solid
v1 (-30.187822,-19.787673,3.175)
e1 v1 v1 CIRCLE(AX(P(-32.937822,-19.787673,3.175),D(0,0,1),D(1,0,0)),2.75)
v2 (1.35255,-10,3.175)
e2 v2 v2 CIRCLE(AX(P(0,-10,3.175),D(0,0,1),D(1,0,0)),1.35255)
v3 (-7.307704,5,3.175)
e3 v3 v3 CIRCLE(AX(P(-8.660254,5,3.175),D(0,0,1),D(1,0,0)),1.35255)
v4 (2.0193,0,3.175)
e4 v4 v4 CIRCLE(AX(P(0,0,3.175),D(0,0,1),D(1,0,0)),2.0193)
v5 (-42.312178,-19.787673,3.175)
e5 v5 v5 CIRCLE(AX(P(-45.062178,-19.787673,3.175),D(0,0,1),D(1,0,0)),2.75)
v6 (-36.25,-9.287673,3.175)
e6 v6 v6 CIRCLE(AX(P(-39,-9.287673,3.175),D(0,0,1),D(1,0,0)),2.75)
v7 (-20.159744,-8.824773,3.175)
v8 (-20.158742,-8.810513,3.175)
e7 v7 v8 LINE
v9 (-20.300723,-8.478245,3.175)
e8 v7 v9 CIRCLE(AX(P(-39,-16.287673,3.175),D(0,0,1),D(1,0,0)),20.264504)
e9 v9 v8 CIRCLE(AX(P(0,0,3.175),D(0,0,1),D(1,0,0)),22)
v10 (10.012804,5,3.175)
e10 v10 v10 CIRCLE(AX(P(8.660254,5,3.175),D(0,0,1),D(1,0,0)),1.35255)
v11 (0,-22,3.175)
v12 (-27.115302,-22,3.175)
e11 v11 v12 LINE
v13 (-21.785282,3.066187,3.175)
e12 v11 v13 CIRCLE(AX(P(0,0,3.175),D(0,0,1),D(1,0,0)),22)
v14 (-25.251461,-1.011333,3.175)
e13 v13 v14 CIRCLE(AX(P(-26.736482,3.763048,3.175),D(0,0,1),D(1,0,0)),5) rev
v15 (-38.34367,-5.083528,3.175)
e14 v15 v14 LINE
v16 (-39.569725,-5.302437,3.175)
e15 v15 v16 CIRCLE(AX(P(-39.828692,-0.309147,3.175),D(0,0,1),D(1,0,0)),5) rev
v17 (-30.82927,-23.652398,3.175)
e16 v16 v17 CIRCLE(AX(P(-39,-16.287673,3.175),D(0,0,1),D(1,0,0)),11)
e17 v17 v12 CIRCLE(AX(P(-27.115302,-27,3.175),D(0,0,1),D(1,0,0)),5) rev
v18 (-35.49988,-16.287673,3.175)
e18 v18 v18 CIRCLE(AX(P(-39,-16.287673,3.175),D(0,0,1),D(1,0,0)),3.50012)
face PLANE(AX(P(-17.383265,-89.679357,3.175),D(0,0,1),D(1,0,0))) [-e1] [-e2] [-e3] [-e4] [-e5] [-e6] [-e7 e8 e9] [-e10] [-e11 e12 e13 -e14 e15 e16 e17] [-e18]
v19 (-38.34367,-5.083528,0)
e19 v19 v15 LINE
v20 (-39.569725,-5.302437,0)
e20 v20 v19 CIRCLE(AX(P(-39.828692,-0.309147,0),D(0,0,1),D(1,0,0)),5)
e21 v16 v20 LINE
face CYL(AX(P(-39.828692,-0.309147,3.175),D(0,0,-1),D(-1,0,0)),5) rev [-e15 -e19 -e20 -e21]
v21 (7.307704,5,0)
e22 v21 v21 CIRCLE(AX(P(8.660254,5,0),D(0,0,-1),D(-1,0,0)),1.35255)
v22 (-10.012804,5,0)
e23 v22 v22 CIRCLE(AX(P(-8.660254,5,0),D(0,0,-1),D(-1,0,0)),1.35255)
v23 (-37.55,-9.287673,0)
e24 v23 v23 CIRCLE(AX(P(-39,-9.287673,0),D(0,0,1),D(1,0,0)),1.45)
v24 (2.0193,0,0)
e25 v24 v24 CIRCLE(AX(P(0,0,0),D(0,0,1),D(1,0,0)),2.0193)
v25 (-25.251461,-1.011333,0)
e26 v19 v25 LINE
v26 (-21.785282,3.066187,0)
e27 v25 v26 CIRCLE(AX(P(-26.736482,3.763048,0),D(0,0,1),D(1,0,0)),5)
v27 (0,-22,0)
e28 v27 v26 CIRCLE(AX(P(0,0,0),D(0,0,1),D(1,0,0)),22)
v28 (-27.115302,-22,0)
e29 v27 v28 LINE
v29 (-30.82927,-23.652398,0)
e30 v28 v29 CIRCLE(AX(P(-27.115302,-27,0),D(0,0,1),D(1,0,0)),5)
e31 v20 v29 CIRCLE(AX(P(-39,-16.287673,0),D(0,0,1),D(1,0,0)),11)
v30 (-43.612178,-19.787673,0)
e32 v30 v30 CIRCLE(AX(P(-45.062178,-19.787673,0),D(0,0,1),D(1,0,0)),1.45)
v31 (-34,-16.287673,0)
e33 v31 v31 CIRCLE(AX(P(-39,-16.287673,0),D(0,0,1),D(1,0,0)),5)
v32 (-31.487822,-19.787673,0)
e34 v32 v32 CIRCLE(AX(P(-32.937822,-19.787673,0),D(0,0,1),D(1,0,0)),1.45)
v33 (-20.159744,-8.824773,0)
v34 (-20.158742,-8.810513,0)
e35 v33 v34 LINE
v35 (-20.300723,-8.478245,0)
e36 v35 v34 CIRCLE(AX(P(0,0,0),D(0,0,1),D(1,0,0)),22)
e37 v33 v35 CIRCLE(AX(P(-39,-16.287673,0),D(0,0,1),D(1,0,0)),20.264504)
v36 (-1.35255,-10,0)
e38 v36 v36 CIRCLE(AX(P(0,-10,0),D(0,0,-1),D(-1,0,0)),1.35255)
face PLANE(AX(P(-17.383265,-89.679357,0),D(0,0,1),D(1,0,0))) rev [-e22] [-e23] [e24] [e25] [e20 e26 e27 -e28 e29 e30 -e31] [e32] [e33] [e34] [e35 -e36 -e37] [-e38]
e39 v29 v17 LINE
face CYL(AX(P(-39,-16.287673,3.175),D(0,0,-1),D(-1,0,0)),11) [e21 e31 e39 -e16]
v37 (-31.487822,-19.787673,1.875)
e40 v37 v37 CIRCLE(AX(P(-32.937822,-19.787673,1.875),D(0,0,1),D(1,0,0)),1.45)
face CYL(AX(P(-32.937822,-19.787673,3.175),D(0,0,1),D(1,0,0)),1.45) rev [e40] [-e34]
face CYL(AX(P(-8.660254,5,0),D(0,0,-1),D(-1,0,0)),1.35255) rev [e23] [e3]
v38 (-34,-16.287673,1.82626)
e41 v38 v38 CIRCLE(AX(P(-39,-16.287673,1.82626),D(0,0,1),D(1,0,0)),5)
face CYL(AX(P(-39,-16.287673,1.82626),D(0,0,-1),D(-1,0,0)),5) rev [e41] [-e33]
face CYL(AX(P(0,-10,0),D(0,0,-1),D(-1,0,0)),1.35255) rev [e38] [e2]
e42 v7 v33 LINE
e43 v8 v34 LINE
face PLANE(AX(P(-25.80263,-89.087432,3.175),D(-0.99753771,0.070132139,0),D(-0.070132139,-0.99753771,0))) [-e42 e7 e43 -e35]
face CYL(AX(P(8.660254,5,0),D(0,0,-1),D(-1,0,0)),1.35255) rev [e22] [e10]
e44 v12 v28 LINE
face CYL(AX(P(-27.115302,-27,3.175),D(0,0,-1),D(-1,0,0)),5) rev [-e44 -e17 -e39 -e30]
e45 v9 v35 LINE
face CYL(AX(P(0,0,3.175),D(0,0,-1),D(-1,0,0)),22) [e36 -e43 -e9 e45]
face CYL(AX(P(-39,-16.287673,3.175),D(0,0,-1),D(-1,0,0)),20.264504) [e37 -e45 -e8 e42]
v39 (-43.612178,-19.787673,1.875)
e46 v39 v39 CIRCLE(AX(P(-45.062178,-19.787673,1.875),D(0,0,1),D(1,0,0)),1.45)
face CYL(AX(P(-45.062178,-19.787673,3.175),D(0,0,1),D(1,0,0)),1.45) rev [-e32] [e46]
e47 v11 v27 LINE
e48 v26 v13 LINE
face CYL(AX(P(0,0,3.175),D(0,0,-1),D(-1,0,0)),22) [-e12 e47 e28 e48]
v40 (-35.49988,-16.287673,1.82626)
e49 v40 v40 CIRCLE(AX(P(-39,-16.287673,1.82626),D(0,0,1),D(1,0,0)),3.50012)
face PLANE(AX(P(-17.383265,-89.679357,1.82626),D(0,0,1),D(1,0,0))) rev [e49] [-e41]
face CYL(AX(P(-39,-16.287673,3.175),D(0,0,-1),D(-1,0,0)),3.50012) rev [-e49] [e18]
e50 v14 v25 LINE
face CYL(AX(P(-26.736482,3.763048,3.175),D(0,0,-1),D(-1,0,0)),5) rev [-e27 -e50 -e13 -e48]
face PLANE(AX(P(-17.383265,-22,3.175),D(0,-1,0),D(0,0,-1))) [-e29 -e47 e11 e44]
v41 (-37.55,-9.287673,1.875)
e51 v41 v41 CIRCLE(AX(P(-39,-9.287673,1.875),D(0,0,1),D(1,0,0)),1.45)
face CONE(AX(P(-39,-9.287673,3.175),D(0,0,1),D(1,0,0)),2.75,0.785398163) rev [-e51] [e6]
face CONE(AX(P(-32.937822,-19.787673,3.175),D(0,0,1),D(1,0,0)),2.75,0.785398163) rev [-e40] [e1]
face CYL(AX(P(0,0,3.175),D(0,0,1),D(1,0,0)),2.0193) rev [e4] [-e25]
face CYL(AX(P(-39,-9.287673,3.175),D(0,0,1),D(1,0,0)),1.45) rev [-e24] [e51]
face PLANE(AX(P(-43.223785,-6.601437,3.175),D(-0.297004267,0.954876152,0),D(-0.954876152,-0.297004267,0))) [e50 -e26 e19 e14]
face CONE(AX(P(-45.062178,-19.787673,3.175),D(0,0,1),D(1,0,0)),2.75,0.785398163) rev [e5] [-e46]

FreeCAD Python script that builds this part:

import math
import FreeCAD as App
import Part
import Sketcher
from FreeCAD import Vector
Q = App.Units.Quantity


def edges_at(feature, points):
    """Names of the edges that pass closest to the given points."""
    edges = feature.Shape.Edges
    near = lambda p: min(range(len(edges)), key=lambda i: edges[i].distToShape(Part.Vertex(*p))[0])
    return sorted({f"Edge{near(p) + 1}" for p in points})

doc = App.newDocument("Part")
body = doc.addObject("PartDesign::Body", "Body")

# Sketch on XY plane
sketch1 = doc.addObject("Sketcher::SketchObject", "Sketch")
body.addObject(sketch1)
sketch1.AttachmentSupport = (doc.XY_Plane, [""])
sketch1.MapMode = "FlatFace"
sketch1.addGeometry([
    Part.ArcOfCircle(Part.Circle(Vector(0, 0, 0), Vector(0, 0, 1), 22), math.radians(0), math.radians(180)),  # 0
    Part.LineSegment(Vector(-22, 0, 0), Vector(-25.572, -1.111, 0)),  # 1
    Part.LineSegment(Vector(-25.572, -1.111, 0), Vector(-39, -5.288, 0)),  # 2
    Part.ArcOfCircle(Part.Circle(Vector(-39, -16.288, 0), Vector(0, 0, 1), 11), math.radians(90), math.radians(329)),  # 3
    Part.LineSegment(Vector(-29.6, -22, 0), Vector(0, -22, 0)),  # 4
    Part.ArcOfCircle(Part.Circle(Vector(0, 0, 0), Vector(0, 0, 1), 22), math.radians(-90), math.radians(0)),  # 5
    Part.ArcOfCircle(Part.Circle(Vector(0, 0, 0), Vector(0, 0, 1), 22), math.radians(-157.33), math.radians(-156.39)),  # 6
    Part.LineSegment(Vector(-20.159, -8.811, 0), Vector(-20.16, -8.825, 0)),  # 7
    Part.ArcOfCircle(Part.Circle(Vector(-39, -16.288, 0), Vector(0, 0, 1), 20.264), math.radians(21.61), math.radians(22.67)),  # 8
    Part.Circle(Vector(-39, -16.288, 0), Vector(0, 0, 1), 3.5),  # 9
], False)
sketch1.addConstraint([
    Sketcher.Constraint("Coincident", 0, 2, 1, 1),
    Sketcher.Constraint("Coincident", 1, 2, 2, 1),
    Sketcher.Constraint("Coincident", 2, 2, 3, 1),
    Sketcher.Constraint("Coincident", 3, 2, 4, 1),
    Sketcher.Constraint("Tangent", 4, 2, 5, 1),
    Sketcher.Constraint("Tangent", 5, 2, 0, 1),
    Sketcher.Constraint("Coincident", 6, 2, 7, 1),
    Sketcher.Constraint("Coincident", 7, 2, 8, 1),
    Sketcher.Constraint("Tangent", 8, 2, 6, 1),
    Sketcher.Constraint("Horizontal", 4),
    Sketcher.Constraint("Coincident", 0, 3, -1, 1),
    Sketcher.Constraint("Coincident", 8, 3, 3, 3),
    Sketcher.Constraint("Coincident", 9, 3, 3, 3),
    Sketcher.Constraint("Equal", 0, 5),
    Sketcher.Constraint("PointOnObject", 0, 2, -1),
    Sketcher.Constraint("PointOnObject", 5, 2, -1),
    Sketcher.Constraint("Parallel", 1, 2),
    Sketcher.Constraint("Vertical", 9, 3, 2, 2),
    Sketcher.Constraint("Radius", 0, Q("22 mm")),
    Sketcher.Constraint("Radius", 3, Q("11 mm")),
    Sketcher.Constraint("DistanceX", 3, 3, -1, 1, Q("39 mm")),
    Sketcher.Constraint("Radius", 8, Q("20.264498 mm")),
    Sketcher.Constraint("Diameter", 9, Q("7.00024 mm")),
    Sketcher.Constraint("Radius", 6, Q("21.999988 mm")),
    Sketcher.Constraint("DistanceY", 7, 2, 2, 2, Q("3.5371 mm")),
    Sketcher.Constraint("DistanceX", 4, 1, 4, 2, Q("29.599504 mm")),
    Sketcher.Constraint("DistanceY", 1, 2, -1, 1, Q("1.11096 mm")),
    Sketcher.Constraint("DistanceX", 6, 2, -1, 1, Q("20.158742 mm")),
    Sketcher.Constraint("DistanceX", 3, 3, 6, 3, Q("38.999989 mm")),
])
pad1 = doc.addObject("PartDesign::Pad", "Pad")
body.addObject(pad1)
pad1.Profile = sketch1
pad1.Length = 3.175

# Sketch on XY plane
sketch2 = doc.addObject("Sketcher::SketchObject", "Sketch001")
body.addObject(sketch2)
sketch2.AttachmentSupport = (doc.XY_Plane, [""])
sketch2.MapMode = "FlatFace"
sketch2.AttachmentOffset = App.Placement(Vector(0, 0, 3.175), App.Rotation())
sketch2.addGeometry([
    Part.Circle(Vector(-39, -9.3, 0), Vector(0, 0, 1), 1.4),
    Part.Circle(Vector(-45.1, -19.8, 0), Vector(0, 0, 1), 1.4),
    Part.Circle(Vector(-32.9, -19.8, 0), Vector(0, 0, 1), 1.4),
], False)
sketch2.addConstraint([
    Sketcher.Constraint("Equal", 0, 1),
    Sketcher.Constraint("Equal", 1, 2),
    Sketcher.Constraint("Horizontal", 1, 3, 2, 3),
    Sketcher.Constraint("Diameter", 0, Q("2.9 mm")),
    Sketcher.Constraint("DistanceX", 0, 3, -1, 1, Q("39 mm")),
    Sketcher.Constraint("DistanceY", 1, 3, 0, 3, Q("10.5 mm")),
    Sketcher.Constraint("DistanceY", 0, 3, -1, 1, Q("9.287673 mm")),
    Sketcher.Constraint("DistanceX", 1, 3, -1, 1, Q("45.062178 mm")),
    Sketcher.Constraint("DistanceX", 2, 3, -1, 1, Q("32.937822 mm")),
])
doc.recompute()
hole = doc.addObject("PartDesign::Hole", "Hole")
body.addObject(hole)
hole.Profile = sketch2
hole.ThreadType = "None"
hole.Diameter = 2.9
hole.DepthType = "ThroughAll"
hole.HoleCutType = "Countersink"
hole.HoleCutDiameter = 5.5
hole.HoleCutCountersinkAngle = 90
doc.recompute()

fillet = doc.addObject("PartDesign::Fillet", "Fillet")
body.addObject(fillet)
fillet.Base = (hole, edges_at(hole, [(-29.6, -22, 1.587), (-39, -5.288, 1.587), (-22, 0, 1.587)]))
fillet.Radius = 5

# Sketch on XY plane
sketch3 = doc.addObject("Sketcher::SketchObject", "Sketch002")
body.addObject(sketch3)
sketch3.AttachmentSupport = (doc.XY_Plane, [""])
sketch3.MapMode = "FlatFace"
sketch3.AttachmentOffset = App.Placement(Vector(0, 0, 3.175), App.Rotation())
sketch3.addGeometry(Part.Circle(Vector(0, 0, 0), Vector(0, 0, 1), 2), False)
sketch3.addConstraint([
    Sketcher.Constraint("Coincident", 0, 3, -1, 1),
    Sketcher.Constraint("Diameter", 0, Q("4.0386 mm")),
])
doc.recompute()
hole2 = doc.addObject("PartDesign::Hole", "Hole001")
body.addObject(hole2)
hole2.Profile = sketch3
hole2.ThreadType = "None"
hole2.Diameter = 4.0386
hole2.DepthType = "Dimension"
hole2.Depth = 12.03
hole2.DrillPoint = "Angled"
hole2.DrillPointAngle = 118

# Sketch on XY plane
sketch4 = doc.addObject("Sketcher::SketchObject", "Sketch003")
body.addObject(sketch4)
sketch4.AttachmentSupport = (doc.XY_Plane, [""])
sketch4.MapMode = "FlatFace"
sketch4.addGeometry([
    Part.Circle(Vector(-8.7, 5, 0), Vector(0, 0, 1), 1.4),
    Part.Circle(Vector(8.7, 5, 0), Vector(0, 0, 1), 1.4),
    Part.Circle(Vector(0, -10, 0), Vector(0, 0, 1), 1.4),
], False)
sketch4.addConstraint([
    Sketcher.Constraint("Equal", 0, 1),
    Sketcher.Constraint("Equal", 1, 2),
    Sketcher.Constraint("Symmetric", 0, 3, 1, 3, -2),
    Sketcher.Constraint("PointOnObject", 2, 3, -2),
    Sketcher.Constraint("DistanceY", -1, 1, 0, 3, Q("5 mm")),
    Sketcher.Constraint("DistanceY", 2, 3, -1, 1, Q("10 mm")),
    Sketcher.Constraint("Diameter", 0, Q("2.7051 mm")),
    Sketcher.Constraint("DistanceX", 0, 3, 1, 3, Q("17.320508 mm")),
])
doc.recompute()
hole3 = doc.addObject("PartDesign::Hole", "Hole002")
body.addObject(hole3)
hole3.Profile = sketch4
hole3.ThreadType = "None"
hole3.Diameter = 2.7051
hole3.DepthType = "Dimension"
hole3.Depth = 9.39
hole3.DrillPoint = "Angled"
hole3.DrillPointAngle = 118
hole3.Reversed = True

# Sketch on XY plane
sketch5 = doc.addObject("Sketcher::SketchObject", "Sketch004")
body.addObject(sketch5)
sketch5.AttachmentSupport = (doc.XY_Plane, [""])
sketch5.MapMode = "FlatFace"
sketch5.addGeometry([
    Part.Circle(Vector(-39, -16.3, 0), Vector(0, 0, 1), 5),
    Part.Circle(Vector(-39, -16.3, 0), Vector(0, 0, 1), 3.5),
], False)
sketch5.addConstraint([
    Sketcher.Constraint("Coincident", 1, 3, 0, 3),
    Sketcher.Constraint("Diameter", 0, Q("10 mm")),
    Sketcher.Constraint("DistanceX", 0, 3, -1, 1, Q("39 mm")),
    Sketcher.Constraint("Diameter", 1, Q("7.00024 mm")),
    Sketcher.Constraint("DistanceY", 0, 3, -1, 1, Q("16.287673 mm")),
])
pocket1 = doc.addObject("PartDesign::Pocket", "Pocket")
body.addObject(pocket1)
pocket1.Profile = sketch5
pocket1.Length = 1.82626
pocket1.Reversed = True

doc.recompute()
